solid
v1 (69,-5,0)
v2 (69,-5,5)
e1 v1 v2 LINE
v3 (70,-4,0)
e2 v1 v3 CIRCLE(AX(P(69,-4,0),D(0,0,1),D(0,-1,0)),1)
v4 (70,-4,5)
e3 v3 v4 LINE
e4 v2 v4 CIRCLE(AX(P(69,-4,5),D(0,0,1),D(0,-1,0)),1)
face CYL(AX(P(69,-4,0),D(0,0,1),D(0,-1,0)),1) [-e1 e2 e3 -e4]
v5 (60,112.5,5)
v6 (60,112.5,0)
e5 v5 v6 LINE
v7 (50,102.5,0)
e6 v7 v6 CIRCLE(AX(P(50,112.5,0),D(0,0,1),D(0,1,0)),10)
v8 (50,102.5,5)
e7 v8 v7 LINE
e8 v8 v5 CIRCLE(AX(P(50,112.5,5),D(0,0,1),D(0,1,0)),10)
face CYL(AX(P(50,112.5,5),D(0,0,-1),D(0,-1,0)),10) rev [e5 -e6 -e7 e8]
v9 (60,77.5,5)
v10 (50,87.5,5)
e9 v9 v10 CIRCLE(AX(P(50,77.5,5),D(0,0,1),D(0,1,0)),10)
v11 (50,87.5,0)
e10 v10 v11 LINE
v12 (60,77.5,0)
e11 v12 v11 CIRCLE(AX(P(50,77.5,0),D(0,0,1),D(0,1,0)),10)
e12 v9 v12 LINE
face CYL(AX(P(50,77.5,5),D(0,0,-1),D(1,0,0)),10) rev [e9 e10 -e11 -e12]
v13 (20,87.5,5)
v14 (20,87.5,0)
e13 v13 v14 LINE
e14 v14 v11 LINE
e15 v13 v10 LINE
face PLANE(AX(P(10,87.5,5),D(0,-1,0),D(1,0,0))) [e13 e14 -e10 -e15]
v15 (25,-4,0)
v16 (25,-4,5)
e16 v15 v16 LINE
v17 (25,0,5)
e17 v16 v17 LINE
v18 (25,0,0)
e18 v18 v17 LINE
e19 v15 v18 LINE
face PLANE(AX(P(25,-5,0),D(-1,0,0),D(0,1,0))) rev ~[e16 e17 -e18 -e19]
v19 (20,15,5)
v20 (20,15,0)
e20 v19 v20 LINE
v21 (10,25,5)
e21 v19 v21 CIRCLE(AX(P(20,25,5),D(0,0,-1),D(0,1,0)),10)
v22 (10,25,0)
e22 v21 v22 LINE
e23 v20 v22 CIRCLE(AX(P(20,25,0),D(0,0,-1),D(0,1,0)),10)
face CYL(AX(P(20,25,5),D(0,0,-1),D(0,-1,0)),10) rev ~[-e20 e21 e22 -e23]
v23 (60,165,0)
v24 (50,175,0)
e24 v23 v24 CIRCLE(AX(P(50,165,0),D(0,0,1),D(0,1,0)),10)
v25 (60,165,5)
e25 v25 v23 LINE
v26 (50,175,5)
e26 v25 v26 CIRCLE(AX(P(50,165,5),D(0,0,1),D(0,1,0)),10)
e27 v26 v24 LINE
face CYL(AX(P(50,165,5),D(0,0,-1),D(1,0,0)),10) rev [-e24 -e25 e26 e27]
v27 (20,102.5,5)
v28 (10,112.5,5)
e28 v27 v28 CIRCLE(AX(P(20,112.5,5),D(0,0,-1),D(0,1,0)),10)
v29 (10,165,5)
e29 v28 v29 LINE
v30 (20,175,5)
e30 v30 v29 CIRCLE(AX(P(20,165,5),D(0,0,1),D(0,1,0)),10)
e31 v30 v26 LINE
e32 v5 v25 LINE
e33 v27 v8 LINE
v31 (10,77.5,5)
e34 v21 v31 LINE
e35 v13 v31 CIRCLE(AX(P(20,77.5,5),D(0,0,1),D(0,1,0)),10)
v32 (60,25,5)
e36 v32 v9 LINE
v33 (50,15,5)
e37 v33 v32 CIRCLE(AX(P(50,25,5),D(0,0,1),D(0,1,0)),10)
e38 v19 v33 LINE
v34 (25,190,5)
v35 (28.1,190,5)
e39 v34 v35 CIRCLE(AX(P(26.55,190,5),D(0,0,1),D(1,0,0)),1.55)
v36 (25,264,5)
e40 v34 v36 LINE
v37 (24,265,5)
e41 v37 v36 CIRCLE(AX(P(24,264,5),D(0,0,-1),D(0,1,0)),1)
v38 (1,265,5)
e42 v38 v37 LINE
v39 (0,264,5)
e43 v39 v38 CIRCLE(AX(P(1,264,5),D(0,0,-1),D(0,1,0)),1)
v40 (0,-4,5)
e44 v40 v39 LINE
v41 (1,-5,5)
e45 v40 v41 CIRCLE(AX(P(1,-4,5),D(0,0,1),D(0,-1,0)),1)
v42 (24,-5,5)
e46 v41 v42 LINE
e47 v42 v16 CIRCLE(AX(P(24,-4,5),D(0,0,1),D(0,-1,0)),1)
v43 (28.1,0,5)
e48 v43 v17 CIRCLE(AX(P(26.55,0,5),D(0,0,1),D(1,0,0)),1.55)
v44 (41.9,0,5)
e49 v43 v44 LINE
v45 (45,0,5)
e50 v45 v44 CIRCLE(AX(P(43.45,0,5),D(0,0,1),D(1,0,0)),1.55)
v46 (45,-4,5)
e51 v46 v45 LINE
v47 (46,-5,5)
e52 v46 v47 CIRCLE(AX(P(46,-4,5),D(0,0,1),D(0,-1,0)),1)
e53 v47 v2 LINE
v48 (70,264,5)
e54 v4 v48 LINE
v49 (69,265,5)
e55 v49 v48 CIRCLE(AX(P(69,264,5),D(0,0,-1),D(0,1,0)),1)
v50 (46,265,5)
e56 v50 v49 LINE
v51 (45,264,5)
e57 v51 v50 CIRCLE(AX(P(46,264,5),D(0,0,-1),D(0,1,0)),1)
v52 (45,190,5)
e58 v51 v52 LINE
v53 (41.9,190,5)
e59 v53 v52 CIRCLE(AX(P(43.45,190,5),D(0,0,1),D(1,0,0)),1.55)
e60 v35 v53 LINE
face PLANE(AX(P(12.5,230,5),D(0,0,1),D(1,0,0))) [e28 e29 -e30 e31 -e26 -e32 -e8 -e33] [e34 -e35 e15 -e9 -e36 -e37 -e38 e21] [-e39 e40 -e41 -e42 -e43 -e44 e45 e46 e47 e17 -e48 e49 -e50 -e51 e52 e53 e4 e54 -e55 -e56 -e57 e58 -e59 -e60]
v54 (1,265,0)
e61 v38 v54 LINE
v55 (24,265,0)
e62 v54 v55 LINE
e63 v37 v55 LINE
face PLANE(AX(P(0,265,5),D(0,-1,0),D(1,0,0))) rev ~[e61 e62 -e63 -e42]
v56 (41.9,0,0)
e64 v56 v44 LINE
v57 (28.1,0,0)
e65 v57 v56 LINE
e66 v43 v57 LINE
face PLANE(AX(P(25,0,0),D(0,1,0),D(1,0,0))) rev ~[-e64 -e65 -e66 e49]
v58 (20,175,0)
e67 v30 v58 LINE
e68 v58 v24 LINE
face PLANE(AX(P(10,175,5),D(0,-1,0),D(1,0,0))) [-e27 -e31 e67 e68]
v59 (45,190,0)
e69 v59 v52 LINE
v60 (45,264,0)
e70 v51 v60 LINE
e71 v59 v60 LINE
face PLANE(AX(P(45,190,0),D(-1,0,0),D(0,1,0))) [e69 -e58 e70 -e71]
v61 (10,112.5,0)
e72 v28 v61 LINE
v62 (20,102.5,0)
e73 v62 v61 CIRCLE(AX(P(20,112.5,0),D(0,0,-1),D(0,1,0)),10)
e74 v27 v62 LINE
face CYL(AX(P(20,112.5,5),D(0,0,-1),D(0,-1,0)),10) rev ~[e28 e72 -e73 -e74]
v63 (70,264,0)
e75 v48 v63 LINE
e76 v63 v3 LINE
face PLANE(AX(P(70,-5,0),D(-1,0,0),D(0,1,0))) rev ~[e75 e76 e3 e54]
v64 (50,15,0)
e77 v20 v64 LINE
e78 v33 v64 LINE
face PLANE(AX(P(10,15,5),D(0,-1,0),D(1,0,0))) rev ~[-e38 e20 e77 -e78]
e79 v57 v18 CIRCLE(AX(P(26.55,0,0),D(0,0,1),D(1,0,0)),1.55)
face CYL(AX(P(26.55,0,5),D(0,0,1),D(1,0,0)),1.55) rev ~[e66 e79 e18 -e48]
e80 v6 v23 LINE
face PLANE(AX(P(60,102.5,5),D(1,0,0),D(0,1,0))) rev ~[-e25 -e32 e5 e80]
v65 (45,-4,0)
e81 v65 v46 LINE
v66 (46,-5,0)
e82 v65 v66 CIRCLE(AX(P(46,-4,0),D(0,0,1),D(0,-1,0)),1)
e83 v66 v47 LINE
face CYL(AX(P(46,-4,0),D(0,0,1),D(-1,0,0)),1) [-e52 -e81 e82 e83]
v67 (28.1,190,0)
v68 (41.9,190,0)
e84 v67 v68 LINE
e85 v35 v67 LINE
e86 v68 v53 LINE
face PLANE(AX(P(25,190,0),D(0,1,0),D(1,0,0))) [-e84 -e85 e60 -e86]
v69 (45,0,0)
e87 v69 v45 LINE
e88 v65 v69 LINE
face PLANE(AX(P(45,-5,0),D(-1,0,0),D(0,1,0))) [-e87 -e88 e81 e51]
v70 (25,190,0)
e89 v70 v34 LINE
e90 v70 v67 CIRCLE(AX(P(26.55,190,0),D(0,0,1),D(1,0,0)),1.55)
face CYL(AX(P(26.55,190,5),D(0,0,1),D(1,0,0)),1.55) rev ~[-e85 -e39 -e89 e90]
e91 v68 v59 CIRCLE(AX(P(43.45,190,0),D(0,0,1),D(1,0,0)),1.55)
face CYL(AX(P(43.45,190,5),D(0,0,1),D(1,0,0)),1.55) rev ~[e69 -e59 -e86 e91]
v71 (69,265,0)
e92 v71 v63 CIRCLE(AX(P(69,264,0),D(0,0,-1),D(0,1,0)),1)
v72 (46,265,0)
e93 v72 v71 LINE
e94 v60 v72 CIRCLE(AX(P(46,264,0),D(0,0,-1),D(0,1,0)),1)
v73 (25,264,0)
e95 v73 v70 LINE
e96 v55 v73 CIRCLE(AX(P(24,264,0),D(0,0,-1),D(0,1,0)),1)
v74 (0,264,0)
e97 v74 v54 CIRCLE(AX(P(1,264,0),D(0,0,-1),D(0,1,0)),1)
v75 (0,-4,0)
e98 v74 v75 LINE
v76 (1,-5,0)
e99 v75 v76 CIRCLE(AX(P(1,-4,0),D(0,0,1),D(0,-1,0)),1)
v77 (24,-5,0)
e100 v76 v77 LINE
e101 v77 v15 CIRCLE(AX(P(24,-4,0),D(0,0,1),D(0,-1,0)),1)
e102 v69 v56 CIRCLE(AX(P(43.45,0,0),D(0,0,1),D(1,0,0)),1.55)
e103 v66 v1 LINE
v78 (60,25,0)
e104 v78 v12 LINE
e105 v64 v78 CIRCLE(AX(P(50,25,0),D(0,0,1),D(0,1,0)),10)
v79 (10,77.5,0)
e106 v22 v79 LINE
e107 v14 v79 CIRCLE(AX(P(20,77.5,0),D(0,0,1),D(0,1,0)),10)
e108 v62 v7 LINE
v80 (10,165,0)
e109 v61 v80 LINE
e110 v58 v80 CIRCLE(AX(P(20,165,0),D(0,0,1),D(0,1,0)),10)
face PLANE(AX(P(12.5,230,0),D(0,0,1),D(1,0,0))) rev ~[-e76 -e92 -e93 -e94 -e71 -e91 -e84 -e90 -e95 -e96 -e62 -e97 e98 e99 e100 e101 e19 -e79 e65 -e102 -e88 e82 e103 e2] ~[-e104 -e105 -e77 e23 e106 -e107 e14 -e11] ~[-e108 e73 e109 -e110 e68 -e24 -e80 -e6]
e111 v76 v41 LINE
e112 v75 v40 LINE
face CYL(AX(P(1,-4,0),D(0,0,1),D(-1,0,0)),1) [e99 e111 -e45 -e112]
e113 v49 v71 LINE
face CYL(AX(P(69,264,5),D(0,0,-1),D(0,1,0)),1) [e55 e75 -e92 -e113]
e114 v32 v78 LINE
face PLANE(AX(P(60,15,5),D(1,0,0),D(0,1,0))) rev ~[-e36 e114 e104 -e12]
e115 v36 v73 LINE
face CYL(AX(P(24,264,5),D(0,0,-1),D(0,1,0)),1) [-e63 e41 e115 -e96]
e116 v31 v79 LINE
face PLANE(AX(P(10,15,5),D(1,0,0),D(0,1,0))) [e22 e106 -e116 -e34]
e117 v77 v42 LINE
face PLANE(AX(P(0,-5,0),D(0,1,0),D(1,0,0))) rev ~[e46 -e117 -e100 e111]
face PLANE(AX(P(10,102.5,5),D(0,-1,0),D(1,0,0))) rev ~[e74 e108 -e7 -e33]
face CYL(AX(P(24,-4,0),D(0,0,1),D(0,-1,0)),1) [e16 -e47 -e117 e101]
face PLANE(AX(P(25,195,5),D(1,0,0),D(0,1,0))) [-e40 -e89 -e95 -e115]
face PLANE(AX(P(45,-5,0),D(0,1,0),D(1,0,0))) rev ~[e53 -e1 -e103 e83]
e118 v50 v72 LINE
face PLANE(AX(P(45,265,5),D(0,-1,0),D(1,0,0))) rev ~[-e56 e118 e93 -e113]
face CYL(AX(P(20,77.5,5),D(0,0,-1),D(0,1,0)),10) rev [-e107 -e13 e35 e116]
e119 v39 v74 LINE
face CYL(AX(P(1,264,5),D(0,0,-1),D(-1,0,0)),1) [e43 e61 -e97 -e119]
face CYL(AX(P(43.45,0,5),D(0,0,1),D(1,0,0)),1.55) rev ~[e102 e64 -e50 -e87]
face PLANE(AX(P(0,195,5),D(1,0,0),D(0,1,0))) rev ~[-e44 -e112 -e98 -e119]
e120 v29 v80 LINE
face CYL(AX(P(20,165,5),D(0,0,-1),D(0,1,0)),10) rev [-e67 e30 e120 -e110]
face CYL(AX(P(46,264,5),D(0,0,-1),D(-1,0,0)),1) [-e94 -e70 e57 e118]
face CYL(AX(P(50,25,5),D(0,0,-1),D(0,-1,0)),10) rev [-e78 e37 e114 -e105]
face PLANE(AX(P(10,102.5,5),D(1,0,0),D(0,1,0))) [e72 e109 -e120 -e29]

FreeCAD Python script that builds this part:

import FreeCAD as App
import Part
import Sketcher

V = App.Vector
Q = App.Units.Quantity


def edges_at(feature, points):
    """Names of the edges that pass closest to the given points."""
    edges = feature.Shape.Edges
    near = lambda p: min(range(len(edges)), key=lambda i: edges[i].distToShape(Part.Vertex(*p))[0])
    return sorted({f"Edge{near(p) + 1}" for p in points})


def add_polygon(sketch, points):
    """Adds a closed chain of lines whose ends are joined by coincident constraints."""
    first, n = sketch.GeometryCount, len(points)
    for a, b in zip(points, points[1:] + points[:1]):
        sketch.addGeometry(Part.LineSegment(App.Vector(*a, 0), App.Vector(*b, 0)), False)
    for i in range(n):
        sketch.addConstraint(Sketcher.Constraint("Coincident", first + i, 2, first + (i + 1) % n, 1))

doc = App.newDocument("Part")
body = doc.addObject("PartDesign::Body", "Body")

# Sketch on XY plane
sketch1 = body.newObject("Sketcher::SketchObject", "Sketch")
sketch1.AttachmentSupport = (doc.getObject("XY_Plane"), [""])
sketch1.MapMode = "FlatFace"
add_polygon(sketch1, [(45, 195), (45, 190), (25, 190), (25, 195), (0, 195), (0, -5), (25, -5), (25, 0), (45, 0), (45, -5), (70, -5), (70, 195)])  # lines 0-11
sketch1.addConstraint([
    Sketcher.Constraint("Vertical", 0),
    Sketcher.Constraint("Horizontal", 1),
    Sketcher.Constraint("Vertical", 2),
    Sketcher.Constraint("Horizontal", 3),
    Sketcher.Constraint("Vertical", 4),
    Sketcher.Constraint("Horizontal", 5),
    Sketcher.Constraint("Vertical", 6),
    Sketcher.Constraint("Horizontal", 7),
    Sketcher.Constraint("Vertical", 8),
    Sketcher.Constraint("Horizontal", 9),
    Sketcher.Constraint("Vertical", 10),
    Sketcher.Constraint("Horizontal", 11),
    Sketcher.Constraint("PointOnObject", 3, 2, -2),
    Sketcher.Constraint("PointOnObject", 6, 2, -1),
    Sketcher.Constraint("Horizontal", 5, 2, 8, 2),
    Sketcher.Constraint("Horizontal", 3, 2, 10, 2),
    Sketcher.Constraint("Vertical", 2, 2, 5, 2),
    Sketcher.Constraint("Vertical", 0, 2, 7, 2),
    Sketcher.Constraint("Equal", 5, 9),
    Sketcher.Constraint("Equal", 2, 6),
    Sketcher.Constraint("DistanceX", 1, 2, 1, 1, Q("20 mm")),
    Sketcher.Constraint("DistanceX", 3, 2, 3, 1, Q("25 mm")),
    Sketcher.Constraint("DistanceY", 0, 2, 0, 1, Q("5 mm")),
    Sketcher.Constraint("DistanceY", 4, 2, 4, 1, Q("200 mm")),
])
pad1 = body.newObject("PartDesign::Pad", "Pad")
pad1.Profile = sketch1
pad1.Length = 5

# Sketch on XY plane
sketch2 = body.newObject("Sketcher::SketchObject", "Sketch001")
sketch2.AttachmentSupport = (doc.getObject("XY_Plane"), [""])
sketch2.MapMode = "FlatFace"
sketch2.AttachmentOffset = App.Placement(V(0, 0, 5), App.Rotation())
sketch2.addGeometry([
    Part.Circle(V(43.45, 0, 0), V(0, 0, 1), 1.55),
    Part.Circle(V(26.55, 0, 0), V(0, 0, 1), 1.55),
    Part.Circle(V(43.45, 190, 0), V(0, 0, 1), 1.55),
    Part.Circle(V(26.55, 190, 0), V(0, 0, 1), 1.55),
], False)
sketch2.addConstraint([
    Sketcher.Constraint("Equal", 0, 1),
    Sketcher.Constraint("Equal", 1, 2),
    Sketcher.Constraint("Equal", 2, 3),
    Sketcher.Constraint("PointOnObject", 0, 3, -1),
    Sketcher.Constraint("PointOnObject", 1, 3, -1),
    Sketcher.Constraint("Horizontal", 2, 3, 3, 3),
    Sketcher.Constraint("Vertical", 0, 3, 2, 3),
    Sketcher.Constraint("Vertical", 1, 3, 3, 3),
    Sketcher.Constraint("Diameter", 0, Q("3.1 mm")),
    Sketcher.Constraint("DistanceY", -1, 1, 2, 3, Q("190 mm")),
    Sketcher.Constraint("DistanceX", 1, 3, 0, 3, Q("16.9 mm")),
    Sketcher.Constraint("DistanceX", -1, 1, 0, 3, Q("43.45 mm")),
])
pocket1 = body.newObject("PartDesign::Pocket", "Pocket")
pocket1.Profile = sketch2
pocket1.Length = 5

# Sketch on XY plane
sketch3 = body.newObject("Sketcher::SketchObject", "Sketch002")
sketch3.AttachmentSupport = (doc.getObject("XY_Plane"), [""])
sketch3.MapMode = "FlatFace"
sketch3.AttachmentOffset = App.Placement(V(0, 0, 5), App.Rotation())
add_polygon(sketch3, [(0, 265), (0, 195), (25, 195), (25, 265)])  # lines 0-3
add_polygon(sketch3, [(45, 265), (45, 195), (70, 195), (70, 265)])  # lines 4-7
sketch3.addConstraint([
    Sketcher.Constraint("Vertical", 0),
    Sketcher.Constraint("Horizontal", 1),
    Sketcher.Constraint("Vertical", 2),
    Sketcher.Constraint("Horizontal", 3),
    Sketcher.Constraint("Vertical", 4),
    Sketcher.Constraint("Horizontal", 5),
    Sketcher.Constraint("Vertical", 6),
    Sketcher.Constraint("Horizontal", 7),
    Sketcher.Constraint("PointOnObject", 0, 2, -2),
    Sketcher.Constraint("Horizontal", 1, 2, 4, 2),
    Sketcher.Constraint("Horizontal", 3, 2, 6, 2),
    Sketcher.Constraint("Equal", 3, 5),
    Sketcher.Constraint("DistanceX", 1, 1, 1, 2, Q("25 mm")),
    Sketcher.Constraint("DistanceY", 0, 2, 0, 1, Q("70 mm")),
    Sketcher.Constraint("DistanceY", -1, 1, 0, 2, Q("195 mm")),
    Sketcher.Constraint("DistanceX", -1, 1, 4, 2, Q("45 mm")),
])
pad2 = body.newObject("PartDesign::Pad", "Pad001")
pad2.Profile = sketch3
pad2.Length = 5
pad2.Reversed = True

# Sketch on XY plane
sketch4 = body.newObject("Sketcher::SketchObject", "Sketch003")
sketch4.AttachmentSupport = (doc.getObject("XY_Plane"), [""])
sketch4.MapMode = "FlatFace"
sketch4.AttachmentOffset = App.Placement(V(0, 0, 5), App.Rotation())
add_polygon(sketch4, [(10, 175), (10, 102.5), (60, 102.5), (60, 175)])  # lines 0-3
add_polygon(sketch4, [(10, 87.5), (10, 15), (60, 15), (60, 87.5)])  # lines 4-7
sketch4.addConstraint([
    Sketcher.Constraint("Vertical", 0),
    Sketcher.Constraint("Horizontal", 1),
    Sketcher.Constraint("Vertical", 2),
    Sketcher.Constraint("Horizontal", 3),
    Sketcher.Constraint("Vertical", 4),
    Sketcher.Constraint("Horizontal", 5),
    Sketcher.Constraint("Vertical", 6),
    Sketcher.Constraint("Horizontal", 7),
    Sketcher.Constraint("Vertical", 3, 2, 4, 2),
    Sketcher.Constraint("Vertical", 2, 2, 5, 2),
    Sketcher.Constraint("Equal", 2, 4),
    Sketcher.Constraint("DistanceX", 1, 1, 1, 2, Q("50 mm")),
    Sketcher.Constraint("DistanceY", 0, 2, 0, 1, Q("72.5 mm")),
    Sketcher.Constraint("DistanceX", -1, 1, 0, 2, Q("10 mm")),
    Sketcher.Constraint("DistanceY", -1, 1, 2, 2, Q("175 mm")),
    Sketcher.Constraint("DistanceY", -1, 1, 4, 2, Q("15 mm")),
])
pocket2 = body.newObject("PartDesign::Pocket", "Pocket001")
pocket2.Profile = sketch4
pocket2.Length = 5
doc.recompute()

fillet = body.newObject("PartDesign::Fillet", "Fillet")
fillet.Base = (pocket2, edges_at(pocket2, [
    (10, 15, 2.5),
    (10, 87.5, 2.5),
    (60, 87.5, 2.5),
    (60, 15, 2.5),
    (60, 102.5, 2.5),
    (10, 102.5, 2.5),
    (10, 175, 2.5),
    (60, 175, 2.5),
]))
fillet.Radius = 10
doc.recompute()

fillet2 = body.newObject("PartDesign::Fillet", "Fillet001")
fillet2.Base = (fillet, edges_at(fillet, [
    (70, -5, 2.5),
    (45, -5, 2.5),
    (25, -5, 2.5),
    (0, -5, 2.5),
    (25, 265, 2.5),
    (0, 265, 2.5),
    (70, 265, 2.5),
    (45, 265, 2.5),
]))
fillet2.Radius = 1

doc.recompute()
